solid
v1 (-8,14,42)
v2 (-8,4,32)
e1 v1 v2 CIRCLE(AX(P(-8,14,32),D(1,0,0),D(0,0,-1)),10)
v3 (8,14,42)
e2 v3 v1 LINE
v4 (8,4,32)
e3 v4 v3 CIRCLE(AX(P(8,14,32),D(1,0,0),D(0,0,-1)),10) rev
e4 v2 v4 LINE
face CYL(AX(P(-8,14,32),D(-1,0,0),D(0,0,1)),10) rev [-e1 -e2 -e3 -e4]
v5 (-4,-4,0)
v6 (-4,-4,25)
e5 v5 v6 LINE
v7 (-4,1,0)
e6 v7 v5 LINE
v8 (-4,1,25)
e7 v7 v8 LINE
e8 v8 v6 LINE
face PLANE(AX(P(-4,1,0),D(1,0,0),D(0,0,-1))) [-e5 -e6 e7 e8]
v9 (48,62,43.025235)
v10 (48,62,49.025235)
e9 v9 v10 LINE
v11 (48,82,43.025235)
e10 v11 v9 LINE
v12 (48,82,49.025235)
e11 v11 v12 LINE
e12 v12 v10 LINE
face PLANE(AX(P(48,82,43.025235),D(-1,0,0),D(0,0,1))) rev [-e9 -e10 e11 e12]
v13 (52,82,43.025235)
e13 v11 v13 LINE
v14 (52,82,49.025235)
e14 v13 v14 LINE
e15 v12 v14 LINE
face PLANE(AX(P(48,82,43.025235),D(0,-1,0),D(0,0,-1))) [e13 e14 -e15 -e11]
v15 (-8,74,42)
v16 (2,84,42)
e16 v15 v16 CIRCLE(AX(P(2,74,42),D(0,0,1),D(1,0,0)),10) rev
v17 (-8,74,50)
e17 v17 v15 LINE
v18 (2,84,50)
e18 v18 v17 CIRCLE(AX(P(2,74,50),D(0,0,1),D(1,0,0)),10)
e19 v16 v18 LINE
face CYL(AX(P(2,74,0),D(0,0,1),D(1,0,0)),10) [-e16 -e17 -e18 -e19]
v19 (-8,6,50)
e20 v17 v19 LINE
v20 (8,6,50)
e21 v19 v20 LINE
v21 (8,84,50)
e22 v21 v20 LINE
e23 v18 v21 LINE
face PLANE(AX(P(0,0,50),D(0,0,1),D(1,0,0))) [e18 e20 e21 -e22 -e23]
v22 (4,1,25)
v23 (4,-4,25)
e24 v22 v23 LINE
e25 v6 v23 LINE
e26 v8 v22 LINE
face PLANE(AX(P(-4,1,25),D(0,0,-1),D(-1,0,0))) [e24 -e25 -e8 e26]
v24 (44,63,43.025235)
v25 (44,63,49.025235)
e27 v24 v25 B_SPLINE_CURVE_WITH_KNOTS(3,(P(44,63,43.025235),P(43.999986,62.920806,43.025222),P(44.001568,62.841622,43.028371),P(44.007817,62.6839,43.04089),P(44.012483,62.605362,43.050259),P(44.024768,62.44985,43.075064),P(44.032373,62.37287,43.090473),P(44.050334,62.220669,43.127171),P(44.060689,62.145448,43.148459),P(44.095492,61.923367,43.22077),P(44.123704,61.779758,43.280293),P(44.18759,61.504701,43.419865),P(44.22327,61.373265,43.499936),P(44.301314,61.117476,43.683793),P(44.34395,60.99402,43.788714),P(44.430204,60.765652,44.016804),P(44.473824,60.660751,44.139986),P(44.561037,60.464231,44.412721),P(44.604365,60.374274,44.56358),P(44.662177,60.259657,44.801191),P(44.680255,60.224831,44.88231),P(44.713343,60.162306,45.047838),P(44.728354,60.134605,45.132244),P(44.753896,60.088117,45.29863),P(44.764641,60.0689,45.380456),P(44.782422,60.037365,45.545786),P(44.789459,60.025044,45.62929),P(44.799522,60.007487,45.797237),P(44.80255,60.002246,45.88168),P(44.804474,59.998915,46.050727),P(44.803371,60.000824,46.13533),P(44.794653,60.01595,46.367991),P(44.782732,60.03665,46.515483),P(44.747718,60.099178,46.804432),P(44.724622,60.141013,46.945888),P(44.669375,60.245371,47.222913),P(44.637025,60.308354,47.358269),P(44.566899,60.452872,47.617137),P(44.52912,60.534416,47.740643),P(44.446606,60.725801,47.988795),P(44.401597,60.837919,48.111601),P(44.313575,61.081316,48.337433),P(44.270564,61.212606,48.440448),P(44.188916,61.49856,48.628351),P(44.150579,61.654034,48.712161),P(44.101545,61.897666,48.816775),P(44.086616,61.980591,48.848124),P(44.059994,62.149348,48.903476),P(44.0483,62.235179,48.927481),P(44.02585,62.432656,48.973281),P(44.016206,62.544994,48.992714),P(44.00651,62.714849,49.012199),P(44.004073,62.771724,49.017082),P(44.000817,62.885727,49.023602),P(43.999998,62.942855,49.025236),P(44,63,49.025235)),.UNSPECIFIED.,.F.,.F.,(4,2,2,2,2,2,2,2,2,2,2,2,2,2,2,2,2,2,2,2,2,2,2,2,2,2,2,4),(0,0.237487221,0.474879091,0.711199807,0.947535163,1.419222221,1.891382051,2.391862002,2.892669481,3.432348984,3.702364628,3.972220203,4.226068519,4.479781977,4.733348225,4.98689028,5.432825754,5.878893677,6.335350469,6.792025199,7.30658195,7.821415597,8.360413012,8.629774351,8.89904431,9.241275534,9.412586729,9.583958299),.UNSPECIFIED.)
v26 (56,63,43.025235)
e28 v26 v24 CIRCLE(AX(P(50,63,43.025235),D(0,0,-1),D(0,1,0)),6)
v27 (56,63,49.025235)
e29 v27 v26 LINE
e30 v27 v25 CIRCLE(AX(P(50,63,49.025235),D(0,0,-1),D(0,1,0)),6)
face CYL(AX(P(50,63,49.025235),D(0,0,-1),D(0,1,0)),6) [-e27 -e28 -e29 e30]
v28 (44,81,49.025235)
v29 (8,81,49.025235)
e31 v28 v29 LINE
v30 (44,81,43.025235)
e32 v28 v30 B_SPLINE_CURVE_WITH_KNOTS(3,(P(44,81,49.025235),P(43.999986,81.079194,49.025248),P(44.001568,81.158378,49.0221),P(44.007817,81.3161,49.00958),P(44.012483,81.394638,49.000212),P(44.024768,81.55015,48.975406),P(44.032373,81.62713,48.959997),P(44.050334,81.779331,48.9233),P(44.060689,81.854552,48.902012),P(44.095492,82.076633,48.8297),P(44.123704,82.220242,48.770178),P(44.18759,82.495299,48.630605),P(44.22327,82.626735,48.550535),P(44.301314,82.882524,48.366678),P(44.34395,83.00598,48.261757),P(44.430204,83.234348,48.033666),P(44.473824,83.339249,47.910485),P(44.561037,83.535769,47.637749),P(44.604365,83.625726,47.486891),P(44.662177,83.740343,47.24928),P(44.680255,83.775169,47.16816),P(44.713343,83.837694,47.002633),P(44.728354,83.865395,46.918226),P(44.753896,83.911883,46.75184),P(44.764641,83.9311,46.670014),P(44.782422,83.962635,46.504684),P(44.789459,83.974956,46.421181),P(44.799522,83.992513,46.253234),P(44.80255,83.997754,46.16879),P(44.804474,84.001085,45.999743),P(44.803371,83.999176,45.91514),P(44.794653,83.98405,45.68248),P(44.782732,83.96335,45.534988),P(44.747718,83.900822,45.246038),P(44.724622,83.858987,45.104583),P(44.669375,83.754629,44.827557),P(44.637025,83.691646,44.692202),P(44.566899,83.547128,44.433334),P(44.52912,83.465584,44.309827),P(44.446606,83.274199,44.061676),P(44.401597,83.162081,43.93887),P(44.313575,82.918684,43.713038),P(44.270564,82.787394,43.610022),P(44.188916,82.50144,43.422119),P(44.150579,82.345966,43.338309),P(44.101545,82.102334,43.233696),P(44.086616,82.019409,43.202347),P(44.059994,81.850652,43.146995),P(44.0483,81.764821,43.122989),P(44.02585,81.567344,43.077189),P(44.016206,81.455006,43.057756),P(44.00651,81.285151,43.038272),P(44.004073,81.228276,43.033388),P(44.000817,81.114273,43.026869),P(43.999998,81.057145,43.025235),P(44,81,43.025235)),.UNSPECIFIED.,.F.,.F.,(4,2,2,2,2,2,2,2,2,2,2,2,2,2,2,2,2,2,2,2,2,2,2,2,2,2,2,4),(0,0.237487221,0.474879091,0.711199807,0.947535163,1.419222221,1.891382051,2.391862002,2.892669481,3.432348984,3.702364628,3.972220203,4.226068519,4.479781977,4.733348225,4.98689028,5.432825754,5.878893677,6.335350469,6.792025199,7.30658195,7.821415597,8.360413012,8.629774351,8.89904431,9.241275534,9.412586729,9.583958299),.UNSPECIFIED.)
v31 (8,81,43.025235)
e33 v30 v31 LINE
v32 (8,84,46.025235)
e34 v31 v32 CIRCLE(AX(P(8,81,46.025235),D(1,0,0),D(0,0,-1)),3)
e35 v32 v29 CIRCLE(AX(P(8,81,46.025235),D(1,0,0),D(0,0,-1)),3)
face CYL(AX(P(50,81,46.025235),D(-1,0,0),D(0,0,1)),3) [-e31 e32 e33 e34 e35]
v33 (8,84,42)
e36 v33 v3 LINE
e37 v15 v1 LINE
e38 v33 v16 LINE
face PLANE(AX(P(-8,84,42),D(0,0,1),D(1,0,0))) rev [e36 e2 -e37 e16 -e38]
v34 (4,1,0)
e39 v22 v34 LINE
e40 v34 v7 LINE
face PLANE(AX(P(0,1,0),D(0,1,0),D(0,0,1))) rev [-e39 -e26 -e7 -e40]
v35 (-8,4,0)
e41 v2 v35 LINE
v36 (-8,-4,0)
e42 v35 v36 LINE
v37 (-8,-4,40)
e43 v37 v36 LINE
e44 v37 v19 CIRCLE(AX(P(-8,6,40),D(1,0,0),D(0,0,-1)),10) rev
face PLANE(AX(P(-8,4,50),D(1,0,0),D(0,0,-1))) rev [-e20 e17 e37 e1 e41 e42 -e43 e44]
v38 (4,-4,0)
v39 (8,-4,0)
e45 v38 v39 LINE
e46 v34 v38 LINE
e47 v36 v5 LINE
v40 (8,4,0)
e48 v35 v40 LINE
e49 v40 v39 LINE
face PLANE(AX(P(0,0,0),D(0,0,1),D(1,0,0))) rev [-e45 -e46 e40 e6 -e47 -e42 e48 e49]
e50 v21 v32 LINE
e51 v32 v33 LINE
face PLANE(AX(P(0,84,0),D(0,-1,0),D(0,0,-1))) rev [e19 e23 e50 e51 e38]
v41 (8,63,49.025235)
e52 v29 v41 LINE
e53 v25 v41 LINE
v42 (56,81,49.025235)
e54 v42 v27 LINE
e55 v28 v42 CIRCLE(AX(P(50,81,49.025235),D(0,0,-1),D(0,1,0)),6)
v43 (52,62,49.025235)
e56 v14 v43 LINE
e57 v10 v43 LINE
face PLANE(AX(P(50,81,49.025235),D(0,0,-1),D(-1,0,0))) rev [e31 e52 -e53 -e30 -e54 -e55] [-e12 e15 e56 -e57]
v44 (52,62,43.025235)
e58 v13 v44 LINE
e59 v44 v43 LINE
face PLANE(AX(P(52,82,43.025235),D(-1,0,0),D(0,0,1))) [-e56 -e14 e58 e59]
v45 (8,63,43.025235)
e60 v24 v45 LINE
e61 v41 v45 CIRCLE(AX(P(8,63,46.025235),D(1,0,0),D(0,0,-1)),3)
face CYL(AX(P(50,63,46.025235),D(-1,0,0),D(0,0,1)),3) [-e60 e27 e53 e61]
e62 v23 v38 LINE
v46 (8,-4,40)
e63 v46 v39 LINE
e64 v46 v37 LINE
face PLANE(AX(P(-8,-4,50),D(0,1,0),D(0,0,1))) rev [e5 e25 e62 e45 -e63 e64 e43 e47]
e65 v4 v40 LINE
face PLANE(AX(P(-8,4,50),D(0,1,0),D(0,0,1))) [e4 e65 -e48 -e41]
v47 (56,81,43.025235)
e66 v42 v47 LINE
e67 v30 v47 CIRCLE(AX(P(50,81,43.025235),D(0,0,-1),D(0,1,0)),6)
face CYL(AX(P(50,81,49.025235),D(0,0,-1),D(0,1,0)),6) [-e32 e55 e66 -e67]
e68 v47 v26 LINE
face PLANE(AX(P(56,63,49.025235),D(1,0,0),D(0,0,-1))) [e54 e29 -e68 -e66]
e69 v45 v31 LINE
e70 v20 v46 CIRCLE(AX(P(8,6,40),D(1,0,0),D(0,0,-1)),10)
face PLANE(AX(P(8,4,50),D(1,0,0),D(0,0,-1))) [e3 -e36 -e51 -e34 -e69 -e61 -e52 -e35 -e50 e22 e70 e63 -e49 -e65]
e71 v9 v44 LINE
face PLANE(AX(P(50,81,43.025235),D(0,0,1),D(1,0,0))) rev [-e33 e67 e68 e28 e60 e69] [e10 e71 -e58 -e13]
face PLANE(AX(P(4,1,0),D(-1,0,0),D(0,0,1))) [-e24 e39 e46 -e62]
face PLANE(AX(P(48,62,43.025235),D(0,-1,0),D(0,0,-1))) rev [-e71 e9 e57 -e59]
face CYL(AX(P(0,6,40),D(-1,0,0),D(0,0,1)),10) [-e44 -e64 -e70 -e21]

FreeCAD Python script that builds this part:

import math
import FreeCAD as App
import Part
import Sketcher
from FreeCAD import Vector


def edges_at(feature, points):
    """Names of the edges that pass closest to the given points."""
    edges = feature.Shape.Edges
    near = lambda p: min(range(len(edges)), key=lambda i: edges[i].distToShape(Part.Vertex(*p))[0])
    return sorted({f"Edge{near(p) + 1}" for p in points})

doc = App.newDocument("Part")
body = doc.addObject("PartDesign::Body", "Body")

# Sketch on XY plane
sketch1 = body.newObject("Sketcher::SketchObject", "Sketch")
sketch1.AttachmentSupport = (doc.getObject("XY_Plane"), [""])
sketch1.MapMode = "FlatFace"
sketch1.addGeometry(Part.LineSegment(Vector(-8, 4, 0), Vector(-8, -4, 0)), False)
sketch1.addGeometry(Part.LineSegment(Vector(-8, -4, 0), Vector(8, -4, 0)), False)
sketch1.addGeometry(Part.LineSegment(Vector(8, -4, 0), Vector(8, 4, 0)), False)
sketch1.addGeometry(Part.LineSegment(Vector(8, 4, 0), Vector(-8, 4, 0)), False)
sketch1.addConstraint(Sketcher.Constraint("Coincident", 0, 2, 1, 1))
sketch1.addConstraint(Sketcher.Constraint("Coincident", 1, 2, 2, 1))
sketch1.addConstraint(Sketcher.Constraint("Coincident", 2, 2, 3, 1))
sketch1.addConstraint(Sketcher.Constraint("Coincident", 3, 2, 0, 1))
sketch1.addConstraint(Sketcher.Constraint("Vertical", 0))
sketch1.addConstraint(Sketcher.Constraint("Horizontal", 1))
sketch1.addConstraint(Sketcher.Constraint("Vertical", 2))
sketch1.addConstraint(Sketcher.Constraint("Horizontal", 3))
sketch1.addConstraint(Sketcher.Constraint("Symmetric", 0, 2, 2, 2, -1, 1))
sketch1.addConstraint(Sketcher.Constraint("DistanceX", 1, 1, 1, 2, 16.0))
sketch1.addConstraint(Sketcher.Constraint("DistanceY", 0, 2, 0, 1, 8.0))
pad1 = body.newObject("PartDesign::Pad", "Pad")
pad1.Profile = sketch1
pad1.Length = 50

# Sketch on XZ plane
sketch2 = body.newObject("Sketcher::SketchObject", "Sketch001")
sketch2.AttachmentSupport = (doc.getObject("XZ_Plane"), [""])
sketch2.MapMode = "FlatFace"
sketch2.AttachmentOffset = App.Placement(Vector(0, 0, 4), App.Rotation())
sketch2.addGeometry(Part.LineSegment(Vector(-4, 0, 0), Vector(-4, 25, 0)), False)
sketch2.addGeometry(Part.LineSegment(Vector(-4, 25, 0), Vector(4, 25, 0)), False)
sketch2.addGeometry(Part.LineSegment(Vector(4, 25, 0), Vector(4, 0, 0)), False)
sketch2.addGeometry(Part.LineSegment(Vector(4, 0, 0), Vector(-4, 0, 0)), False)
sketch2.addConstraint(Sketcher.Constraint("Coincident", 0, 2, 1, 1))
sketch2.addConstraint(Sketcher.Constraint("Coincident", 1, 2, 2, 1))
sketch2.addConstraint(Sketcher.Constraint("Coincident", 2, 2, 3, 1))
sketch2.addConstraint(Sketcher.Constraint("Coincident", 3, 2, 0, 1))
sketch2.addConstraint(Sketcher.Constraint("Vertical", 0))
sketch2.addConstraint(Sketcher.Constraint("Horizontal", 1))
sketch2.addConstraint(Sketcher.Constraint("Vertical", 2))
sketch2.addConstraint(Sketcher.Constraint("Horizontal", 3))
sketch2.addConstraint(Sketcher.Constraint("Symmetric", 2, 2, 3, 2, -1, 1))
sketch2.addConstraint(Sketcher.Constraint("DistanceX", 1, 1, 1, 2, 8.0))
sketch2.addConstraint(Sketcher.Constraint("DistanceY", 0, 1, 0, 2, 25.0))
pocket1 = body.newObject("PartDesign::Pocket", "Pocket")
pocket1.Profile = sketch2
pocket1.Length = 5

# Sketch on XZ plane
sketch3 = body.newObject("Sketcher::SketchObject", "Sketch002")
sketch3.AttachmentSupport = (doc.getObject("XZ_Plane"), [""])
sketch3.MapMode = "FlatFace"
sketch3.AttachmentOffset = App.Placement(Vector(0, 0, -4), App.Rotation())
sketch3.addGeometry(Part.LineSegment(Vector(-8, 42, 0), Vector(-8, 50, 0)), False)
sketch3.addGeometry(Part.LineSegment(Vector(-8, 50, 0), Vector(8, 50, 0)), False)
sketch3.addGeometry(Part.LineSegment(Vector(8, 50, 0), Vector(8, 42, 0)), False)
sketch3.addGeometry(Part.LineSegment(Vector(8, 42, 0), Vector(-8, 42, 0)), False)
sketch3.addConstraint(Sketcher.Constraint("Coincident", 0, 2, 1, 1))
sketch3.addConstraint(Sketcher.Constraint("Coincident", 1, 2, 2, 1))
sketch3.addConstraint(Sketcher.Constraint("Coincident", 2, 2, 3, 1))
sketch3.addConstraint(Sketcher.Constraint("Coincident", 3, 2, 0, 1))
sketch3.addConstraint(Sketcher.Constraint("Vertical", 0))
sketch3.addConstraint(Sketcher.Constraint("Horizontal", 1))
sketch3.addConstraint(Sketcher.Constraint("Vertical", 2))
sketch3.addConstraint(Sketcher.Constraint("Horizontal", 3))
sketch3.addConstraint(Sketcher.Constraint("DistanceX", 1, 1, 1, 2, 16.0))
sketch3.addConstraint(Sketcher.Constraint("DistanceY", 0, 1, 0, 2, 8.0))
sketch3.addConstraint(Sketcher.Constraint("DistanceX", 0, 2, -1, 1, 8.0))
sketch3.addConstraint(Sketcher.Constraint("DistanceY", -1, 1, 0, 2, 50.0))
pad2 = body.newObject("PartDesign::Pad", "Pad001")
pad2.Profile = sketch3
pad2.Length = 80
pad2.Reversed = True

# Sketch on YZ plane
sketch4 = body.newObject("Sketcher::SketchObject", "Sketch003")
sketch4.AttachmentSupport = (doc.getObject("YZ_Plane"), [""])
sketch4.MapMode = "FlatFace"
sketch4.AttachmentOffset = App.Placement(Vector(0, 0, 8), App.Rotation())
sketch4.addGeometry(Part.LineSegment(Vector(63, 43, 0), Vector(81, 43, 0)), False)
sketch4.addGeometry(Part.ArcOfCircle(Part.Circle(Vector(81, 46, 0), Vector(0, 0, 1), 3), math.radians(-90), math.radians(90)), False)
sketch4.addGeometry(Part.LineSegment(Vector(81, 49, 0), Vector(63, 49, 0)), False)
sketch4.addGeometry(Part.ArcOfCircle(Part.Circle(Vector(63, 46, 0), Vector(0, 0, 1), 3), math.radians(90), math.radians(270)), False)
sketch4.addConstraint(Sketcher.Constraint("Tangent", 0, 2, 1, 1))
sketch4.addConstraint(Sketcher.Constraint("Tangent", 1, 2, 2, 1))
sketch4.addConstraint(Sketcher.Constraint("Tangent", 2, 2, 3, 1))
sketch4.addConstraint(Sketcher.Constraint("Tangent", 3, 2, 0, 1))
sketch4.addConstraint(Sketcher.Constraint("Horizontal", 0))
sketch4.addConstraint(Sketcher.Constraint("Horizontal", 2))
sketch4.addConstraint(Sketcher.Constraint("Radius", 1, 3.0))
sketch4.addConstraint(Sketcher.Constraint("DistanceX", 0, 1, 0, 2, 18.0))
sketch4.addConstraint(Sketcher.Constraint("DistanceX", -1, 1, 1, 3, 81.0))
sketch4.addConstraint(Sketcher.Constraint("DistanceY", -1, 1, 1, 3, 46.025235))
pad3 = body.newObject("PartDesign::Pad", "Pad002")
pad3.Profile = sketch4
pad3.Length = 42

# Sketch on XY plane
sketch5 = body.newObject("Sketcher::SketchObject", "Sketch004")
sketch5.AttachmentSupport = (doc.getObject("XY_Plane"), [""])
sketch5.MapMode = "FlatFace"
sketch5.AttachmentOffset = App.Placement(Vector(0, 0, 43.025235), App.Rotation())
sketch5.addGeometry(Part.LineSegment(Vector(56, 81, 0), Vector(56, 63, 0)), False)
sketch5.addGeometry(Part.ArcOfCircle(Part.Circle(Vector(50, 63, 0), Vector(0, 0, 1), 6), math.radians(180), math.radians(360)), False)
sketch5.addGeometry(Part.LineSegment(Vector(44, 63, 0), Vector(44, 81, 0)), False)
sketch5.addGeometry(Part.ArcOfCircle(Part.Circle(Vector(50, 81, 0), Vector(0, 0, 1), 6), math.radians(0), math.radians(180)), False)
sketch5.addConstraint(Sketcher.Constraint("Tangent", 0, 2, 1, 2))
sketch5.addConstraint(Sketcher.Constraint("Tangent", 1, 1, 2, 1))
sketch5.addConstraint(Sketcher.Constraint("Tangent", 2, 2, 3, 2))
sketch5.addConstraint(Sketcher.Constraint("Tangent", 3, 1, 0, 1))
sketch5.addConstraint(Sketcher.Constraint("Vertical", 0))
sketch5.addConstraint(Sketcher.Constraint("Vertical", 2))
sketch5.addConstraint(Sketcher.Constraint("Radius", 1, 6.0))
sketch5.addConstraint(Sketcher.Constraint("DistanceY", 0, 2, 0, 1, 18.0))
sketch5.addConstraint(Sketcher.Constraint("DistanceX", -1, 1, 1, 3, 50.0))
sketch5.addConstraint(Sketcher.Constraint("DistanceY", -1, 1, 1, 3, 63.0))
pad4 = body.newObject("PartDesign::Pad", "Pad003")
pad4.Profile = sketch5
pad4.Length = 6

# Sketch on XY plane
sketch6 = body.newObject("Sketcher::SketchObject", "Sketch005")
sketch6.AttachmentSupport = (doc.getObject("XY_Plane"), [""])
sketch6.MapMode = "FlatFace"
sketch6.AttachmentOffset = App.Placement(Vector(0, 0, 49.025235), App.Rotation())
sketch6.addGeometry(Part.LineSegment(Vector(48, 82, 0), Vector(48, 62, 0)), False)
sketch6.addGeometry(Part.LineSegment(Vector(48, 62, 0), Vector(52, 62, 0)), False)
sketch6.addGeometry(Part.LineSegment(Vector(52, 62, 0), Vector(52, 82, 0)), False)
sketch6.addGeometry(Part.LineSegment(Vector(52, 82, 0), Vector(48, 82, 0)), False)
sketch6.addConstraint(Sketcher.Constraint("Coincident", 0, 2, 1, 1))
sketch6.addConstraint(Sketcher.Constraint("Coincident", 1, 2, 2, 1))
sketch6.addConstraint(Sketcher.Constraint("Coincident", 2, 2, 3, 1))
sketch6.addConstraint(Sketcher.Constraint("Coincident", 3, 2, 0, 1))
sketch6.addConstraint(Sketcher.Constraint("Vertical", 0))
sketch6.addConstraint(Sketcher.Constraint("Horizontal", 1))
sketch6.addConstraint(Sketcher.Constraint("Vertical", 2))
sketch6.addConstraint(Sketcher.Constraint("Horizontal", 3))
sketch6.addConstraint(Sketcher.Constraint("DistanceX", 1, 1, 1, 2, 4.0))
sketch6.addConstraint(Sketcher.Constraint("DistanceY", 0, 2, 0, 1, 20.0))
sketch6.addConstraint(Sketcher.Constraint("DistanceX", -1, 1, 0, 2, 48.0))
sketch6.addConstraint(Sketcher.Constraint("DistanceY", -1, 1, 0, 2, 62.0))
pocket2 = body.newObject("PartDesign::Pocket", "Pocket001")
pocket2.Profile = sketch6
pocket2.Length = 6
doc.recompute()

fillet = body.newObject("PartDesign::Fillet", "Fillet")
fillet.Base = (pocket2, edges_at(pocket2, [(0, -4, 50)]))
fillet.Radius = 10
doc.recompute()

fillet2 = body.newObject("PartDesign::Fillet", "Fillet001")
fillet2.Base = (fillet, edges_at(fillet, [(0, 4, 42)]))
fillet2.Radius = 10
doc.recompute()

fillet3 = body.newObject("PartDesign::Fillet", "Fillet002")
fillet3.Base = (fillet2, edges_at(fillet2, [(-8, 84, 46)]))
fillet3.Radius = 10

doc.recompute()
